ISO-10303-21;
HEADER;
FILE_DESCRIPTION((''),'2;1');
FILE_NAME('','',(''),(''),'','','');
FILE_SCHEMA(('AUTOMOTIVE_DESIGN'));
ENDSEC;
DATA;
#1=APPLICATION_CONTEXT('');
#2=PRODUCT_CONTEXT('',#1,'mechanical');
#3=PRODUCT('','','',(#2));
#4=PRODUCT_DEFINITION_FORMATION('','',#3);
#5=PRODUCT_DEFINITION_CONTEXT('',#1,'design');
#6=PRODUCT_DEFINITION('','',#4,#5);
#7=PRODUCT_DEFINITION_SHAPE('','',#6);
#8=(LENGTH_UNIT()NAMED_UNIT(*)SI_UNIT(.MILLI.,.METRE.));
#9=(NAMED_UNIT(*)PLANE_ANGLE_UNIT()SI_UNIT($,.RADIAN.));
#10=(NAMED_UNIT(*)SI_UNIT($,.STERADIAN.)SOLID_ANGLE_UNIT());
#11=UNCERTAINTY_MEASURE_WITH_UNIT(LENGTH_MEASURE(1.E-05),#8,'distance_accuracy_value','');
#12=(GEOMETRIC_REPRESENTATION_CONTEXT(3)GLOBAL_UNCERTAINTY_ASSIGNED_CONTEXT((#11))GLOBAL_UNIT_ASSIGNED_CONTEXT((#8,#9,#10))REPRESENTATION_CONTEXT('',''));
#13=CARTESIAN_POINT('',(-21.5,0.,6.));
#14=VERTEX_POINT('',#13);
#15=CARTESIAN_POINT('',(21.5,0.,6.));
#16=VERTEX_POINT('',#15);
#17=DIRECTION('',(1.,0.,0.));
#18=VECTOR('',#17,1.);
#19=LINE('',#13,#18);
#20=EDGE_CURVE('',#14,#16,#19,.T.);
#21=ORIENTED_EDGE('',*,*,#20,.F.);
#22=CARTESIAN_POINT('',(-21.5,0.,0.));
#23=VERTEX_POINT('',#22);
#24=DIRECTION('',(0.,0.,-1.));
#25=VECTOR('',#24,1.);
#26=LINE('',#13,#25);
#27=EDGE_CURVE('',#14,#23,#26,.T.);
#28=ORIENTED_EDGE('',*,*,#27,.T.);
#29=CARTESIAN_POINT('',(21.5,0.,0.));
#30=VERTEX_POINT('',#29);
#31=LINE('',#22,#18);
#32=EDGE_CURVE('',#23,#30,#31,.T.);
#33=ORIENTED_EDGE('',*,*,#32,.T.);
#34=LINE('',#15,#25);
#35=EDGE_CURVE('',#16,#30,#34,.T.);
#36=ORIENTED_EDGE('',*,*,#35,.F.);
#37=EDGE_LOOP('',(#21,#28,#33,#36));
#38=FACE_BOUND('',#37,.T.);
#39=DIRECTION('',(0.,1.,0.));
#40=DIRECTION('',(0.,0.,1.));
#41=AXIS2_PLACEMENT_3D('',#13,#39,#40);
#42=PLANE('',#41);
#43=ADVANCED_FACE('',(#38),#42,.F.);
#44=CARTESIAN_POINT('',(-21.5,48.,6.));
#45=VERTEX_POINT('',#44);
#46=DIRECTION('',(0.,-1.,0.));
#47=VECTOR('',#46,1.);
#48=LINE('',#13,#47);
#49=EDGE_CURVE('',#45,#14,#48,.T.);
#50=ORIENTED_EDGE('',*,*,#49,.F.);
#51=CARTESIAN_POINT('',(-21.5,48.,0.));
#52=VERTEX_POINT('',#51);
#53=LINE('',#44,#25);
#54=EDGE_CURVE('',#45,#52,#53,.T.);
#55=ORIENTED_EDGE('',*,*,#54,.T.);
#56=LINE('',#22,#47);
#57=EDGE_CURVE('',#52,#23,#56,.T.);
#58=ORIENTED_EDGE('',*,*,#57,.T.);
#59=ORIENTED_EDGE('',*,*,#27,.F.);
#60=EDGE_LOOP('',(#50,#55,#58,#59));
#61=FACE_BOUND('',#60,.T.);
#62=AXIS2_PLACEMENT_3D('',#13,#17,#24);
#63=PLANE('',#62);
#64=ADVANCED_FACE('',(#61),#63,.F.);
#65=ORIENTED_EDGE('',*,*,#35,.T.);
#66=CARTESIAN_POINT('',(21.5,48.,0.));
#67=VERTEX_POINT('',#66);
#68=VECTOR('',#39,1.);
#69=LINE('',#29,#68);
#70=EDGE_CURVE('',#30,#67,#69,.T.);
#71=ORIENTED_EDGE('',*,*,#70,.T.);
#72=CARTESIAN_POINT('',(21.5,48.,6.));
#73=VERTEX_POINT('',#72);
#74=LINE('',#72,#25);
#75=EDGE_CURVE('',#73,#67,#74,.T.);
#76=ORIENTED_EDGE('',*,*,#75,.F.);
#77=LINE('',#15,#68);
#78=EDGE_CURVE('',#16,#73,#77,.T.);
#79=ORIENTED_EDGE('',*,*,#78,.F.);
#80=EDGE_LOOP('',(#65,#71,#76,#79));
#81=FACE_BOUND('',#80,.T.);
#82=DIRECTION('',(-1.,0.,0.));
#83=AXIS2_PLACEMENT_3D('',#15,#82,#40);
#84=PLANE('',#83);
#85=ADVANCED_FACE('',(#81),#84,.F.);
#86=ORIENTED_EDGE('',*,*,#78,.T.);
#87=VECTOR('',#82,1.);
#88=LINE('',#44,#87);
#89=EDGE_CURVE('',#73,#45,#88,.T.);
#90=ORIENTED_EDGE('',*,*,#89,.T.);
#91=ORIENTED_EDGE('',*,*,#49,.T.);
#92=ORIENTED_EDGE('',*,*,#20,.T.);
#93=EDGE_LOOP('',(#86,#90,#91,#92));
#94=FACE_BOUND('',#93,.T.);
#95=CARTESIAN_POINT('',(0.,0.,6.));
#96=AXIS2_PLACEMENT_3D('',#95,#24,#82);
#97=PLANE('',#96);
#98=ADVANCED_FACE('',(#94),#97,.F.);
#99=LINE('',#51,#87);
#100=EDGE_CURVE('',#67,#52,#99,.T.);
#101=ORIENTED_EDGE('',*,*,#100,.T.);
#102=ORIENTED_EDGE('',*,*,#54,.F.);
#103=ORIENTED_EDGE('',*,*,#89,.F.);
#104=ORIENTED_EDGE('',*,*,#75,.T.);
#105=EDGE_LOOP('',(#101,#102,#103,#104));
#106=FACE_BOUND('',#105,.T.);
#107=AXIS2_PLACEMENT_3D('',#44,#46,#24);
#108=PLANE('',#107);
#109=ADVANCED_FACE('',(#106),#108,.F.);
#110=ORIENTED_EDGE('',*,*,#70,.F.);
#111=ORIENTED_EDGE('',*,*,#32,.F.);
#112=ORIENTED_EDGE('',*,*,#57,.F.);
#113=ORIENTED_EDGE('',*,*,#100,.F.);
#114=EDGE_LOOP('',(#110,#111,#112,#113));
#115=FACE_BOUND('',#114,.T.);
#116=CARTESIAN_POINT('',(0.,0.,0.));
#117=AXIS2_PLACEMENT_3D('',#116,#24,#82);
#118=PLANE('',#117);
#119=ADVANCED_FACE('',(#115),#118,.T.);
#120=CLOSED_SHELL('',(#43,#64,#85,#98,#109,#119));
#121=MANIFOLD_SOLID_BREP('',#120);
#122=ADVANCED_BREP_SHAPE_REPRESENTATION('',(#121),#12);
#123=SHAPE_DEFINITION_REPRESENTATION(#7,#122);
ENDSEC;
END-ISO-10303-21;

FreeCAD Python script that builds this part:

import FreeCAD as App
import Part
import Sketcher
from FreeCAD import Vector

doc = App.newDocument("Part")
body = doc.addObject("PartDesign::Body", "Body")

# Sketch on XY plane
sketch1 = doc.addObject("Sketcher::SketchObject", "Sketch")
body.addObject(sketch1)
sketch1.AttachmentSupport = (doc.XY_Plane, [""])
sketch1.MapMode = "FlatFace"
sketch1.addGeometry(Part.LineSegment(Vector(-22, 48, 0), Vector(-22, 0, 0)), False)
sketch1.addGeometry(Part.LineSegment(Vector(-22, 0, 0), Vector(22, 0, 0)), False)
sketch1.addGeometry(Part.LineSegment(Vector(22, 0, 0), Vector(22, 48, 0)), False)
sketch1.addGeometry(Part.LineSegment(Vector(22, 48, 0), Vector(-22, 48, 0)), False)
sketch1.addConstraint(Sketcher.Constraint("Coincident", 0, 2, 1, 1))
sketch1.addConstraint(Sketcher.Constraint("Coincident", 1, 2, 2, 1))
sketch1.addConstraint(Sketcher.Constraint("Coincident", 2, 2, 3, 1))
sketch1.addConstraint(Sketcher.Constraint("Coincident", 3, 2, 0, 1))
sketch1.addConstraint(Sketcher.Constraint("Vertical", 0))
sketch1.addConstraint(Sketcher.Constraint("Horizontal", 1))
sketch1.addConstraint(Sketcher.Constraint("Vertical", 2))
sketch1.addConstraint(Sketcher.Constraint("Horizontal", 3))
sketch1.addConstraint(Sketcher.Constraint("Symmetric", 0, 2, 1, 2, -1, 1))
sketch1.addConstraint(Sketcher.Constraint("DistanceX", 1, 1, 1, 2, 43.0))
sketch1.addConstraint(Sketcher.Constraint("DistanceY", 0, 2, 0, 1, 48.0))
pad1 = doc.addObject("PartDesign::Pad", "Pad")
body.addObject(pad1)
pad1.Profile = sketch1
pad1.Length = 6

doc.recompute()
